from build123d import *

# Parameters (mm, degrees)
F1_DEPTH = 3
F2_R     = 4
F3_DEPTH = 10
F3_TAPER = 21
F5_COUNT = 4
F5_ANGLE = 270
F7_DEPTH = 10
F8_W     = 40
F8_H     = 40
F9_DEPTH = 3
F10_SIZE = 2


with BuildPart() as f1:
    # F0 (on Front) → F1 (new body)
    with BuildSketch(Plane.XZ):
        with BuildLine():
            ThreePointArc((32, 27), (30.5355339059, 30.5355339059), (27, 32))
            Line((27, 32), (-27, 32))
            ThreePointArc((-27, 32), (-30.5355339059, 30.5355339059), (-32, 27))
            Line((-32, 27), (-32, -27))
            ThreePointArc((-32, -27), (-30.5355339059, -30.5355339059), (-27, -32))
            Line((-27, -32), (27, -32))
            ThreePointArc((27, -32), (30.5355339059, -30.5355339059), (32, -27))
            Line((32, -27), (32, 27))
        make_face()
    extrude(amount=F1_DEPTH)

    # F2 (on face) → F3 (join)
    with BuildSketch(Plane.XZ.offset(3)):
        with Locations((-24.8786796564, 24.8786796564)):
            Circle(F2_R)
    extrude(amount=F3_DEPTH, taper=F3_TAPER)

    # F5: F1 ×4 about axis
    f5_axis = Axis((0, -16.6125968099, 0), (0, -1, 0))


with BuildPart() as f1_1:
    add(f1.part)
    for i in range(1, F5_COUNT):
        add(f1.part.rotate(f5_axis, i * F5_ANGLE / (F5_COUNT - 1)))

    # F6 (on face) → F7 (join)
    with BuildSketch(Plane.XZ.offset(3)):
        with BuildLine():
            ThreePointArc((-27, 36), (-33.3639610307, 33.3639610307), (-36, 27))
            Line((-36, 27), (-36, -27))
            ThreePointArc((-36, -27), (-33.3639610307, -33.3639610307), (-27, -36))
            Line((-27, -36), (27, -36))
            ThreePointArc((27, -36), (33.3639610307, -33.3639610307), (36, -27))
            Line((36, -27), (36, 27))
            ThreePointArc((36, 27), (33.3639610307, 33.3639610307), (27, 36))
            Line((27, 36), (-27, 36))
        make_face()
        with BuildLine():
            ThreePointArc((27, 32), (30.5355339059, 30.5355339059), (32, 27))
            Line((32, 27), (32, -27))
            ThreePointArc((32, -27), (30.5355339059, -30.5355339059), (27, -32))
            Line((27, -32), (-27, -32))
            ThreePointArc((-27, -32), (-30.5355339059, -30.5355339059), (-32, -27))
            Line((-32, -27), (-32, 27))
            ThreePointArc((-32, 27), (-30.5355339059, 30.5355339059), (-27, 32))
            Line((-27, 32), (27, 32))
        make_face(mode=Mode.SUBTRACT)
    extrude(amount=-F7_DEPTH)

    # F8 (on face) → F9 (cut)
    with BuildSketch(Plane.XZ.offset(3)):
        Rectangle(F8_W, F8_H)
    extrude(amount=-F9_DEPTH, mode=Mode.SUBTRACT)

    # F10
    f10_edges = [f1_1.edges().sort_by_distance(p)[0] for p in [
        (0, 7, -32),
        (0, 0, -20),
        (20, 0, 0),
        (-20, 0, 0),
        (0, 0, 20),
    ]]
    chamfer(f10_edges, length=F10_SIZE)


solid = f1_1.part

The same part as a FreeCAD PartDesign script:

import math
import FreeCAD as App
import Part
import Sketcher
Q = App.Units.Quantity


def edges_at(feature, points):
    """Names of the edges that pass closest to the given points."""
    edges = feature.Shape.Edges
    near = lambda p: min(range(len(edges)), key=lambda i: edges[i].distToShape(Part.Vertex(*p))[0])
    return sorted({f"Edge{near(p) + 1}" for p in points})

doc = App.newDocument("Part")
params = doc.addObject("Spreadsheet::Sheet", "Params")
for row, (alias, value) in enumerate([
    ("sketch1_radius", "5 mm"),
    ("sketch1_width", "54 mm"),
    ("pad1_length", "3 mm"),
    ("sketch2_diameter", "8 mm"),
    ("pad2_length", "10 mm"),
    ("pad2_taper", "-21 deg"),
    ("sketch3_radius", "9 mm"),
    ("sketch3_radius2", "5 mm"),
    ("sketch3_width", "54 mm"),
    ("pad3_length", "10 mm"),
    ("sketch4_width", "40 mm"),
    ("pocket1_length", "3 mm"),
    ("chamfer_size", "2 mm"),
], start=1):
    params.set(f"A{row}", alias)
    params.set(f"B{row}", "=" + value)
    params.setAlias(f"B{row}", alias)

body = doc.addObject("PartDesign::Body", "Body")

# Sketch on XZ plane
sketch1 = doc.addObject("Sketcher::SketchObject", "Sketch")
body.addObject(sketch1)
sketch1.AttachmentSupport = (doc.XZ_Plane, [""])
sketch1.MapMode = "FlatFace"
sketch1.addGeometry(Part.ArcOfCircle(Part.Circle(App.Vector(27, 27, 0), App.Vector(0, 0, 1), 5), math.radians(0), math.radians(90)), False)
sketch1.addGeometry(Part.LineSegment(App.Vector(27, 32, 0), App.Vector(-27, 32, 0)), False)
sketch1.addGeometry(Part.ArcOfCircle(Part.Circle(App.Vector(-27, 27, 0), App.Vector(0, 0, 1), 5), math.radians(90), math.radians(180)), False)
sketch1.addGeometry(Part.LineSegment(App.Vector(-32, 27, 0), App.Vector(-32, -27, 0)), False)
sketch1.addGeometry(Part.ArcOfCircle(Part.Circle(App.Vector(-27, -27, 0), App.Vector(0, 0, 1), 5), math.radians(180), math.radians(270)), False)
sketch1.addGeometry(Part.LineSegment(App.Vector(-27, -32, 0), App.Vector(27, -32, 0)), False)
sketch1.addGeometry(Part.ArcOfCircle(Part.Circle(App.Vector(27, -27, 0), App.Vector(0, 0, 1), 5), math.radians(-90), math.radians(0)), False)
sketch1.addGeometry(Part.LineSegment(App.Vector(32, -27, 0), App.Vector(32, 27, 0)), False)
sketch1.addConstraint(Sketcher.Constraint("Tangent", 0, 2, 1, 1))
sketch1.addConstraint(Sketcher.Constraint("Tangent", 1, 2, 2, 1))
sketch1.addConstraint(Sketcher.Constraint("Tangent", 2, 2, 3, 1))
sketch1.addConstraint(Sketcher.Constraint("Tangent", 3, 2, 4, 1))
sketch1.addConstraint(Sketcher.Constraint("Tangent", 4, 2, 5, 1))
sketch1.addConstraint(Sketcher.Constraint("Tangent", 5, 2, 6, 1))
sketch1.addConstraint(Sketcher.Constraint("Tangent", 6, 2, 7, 1))
sketch1.addConstraint(Sketcher.Constraint("Tangent", 7, 2, 0, 1))
sketch1.addConstraint(Sketcher.Constraint("Horizontal", 1))
sketch1.addConstraint(Sketcher.Constraint("Vertical", 3))
sketch1.addConstraint(Sketcher.Constraint("Horizontal", 5))
sketch1.addConstraint(Sketcher.Constraint("Vertical", 7))
sketch1.addConstraint(Sketcher.Constraint("Equal", 0, 2))
sketch1.addConstraint(Sketcher.Constraint("Equal", 2, 4))
sketch1.addConstraint(Sketcher.Constraint("Equal", 4, 6))
sketch1.addConstraint(Sketcher.Constraint("Symmetric", 0, 3, 4, 3, -1, 1))
sketch1.addConstraint(Sketcher.Constraint("Equal", 5, 3))
sketch1.addConstraint(Sketcher.Constraint("Radius", 0, Q("5 mm")))
sketch1.addConstraint(Sketcher.Constraint("DistanceX", 1, 2, 1, 1, Q("54 mm")))
sketch1.setExpression("Constraints[17]", "Params.sketch1_radius")
sketch1.setExpression("Constraints[18]", "Params.sketch1_width")
pad1 = doc.addObject("PartDesign::Pad", "Pad")
body.addObject(pad1)
pad1.Profile = sketch1
pad1.setExpression("Length", "Params.pad1_length")

# Sketch on XZ plane
sketch2 = doc.addObject("Sketcher::SketchObject", "Sketch001")
body.addObject(sketch2)
sketch2.AttachmentSupport = (doc.XZ_Plane, [""])
sketch2.MapMode = "FlatFace"
sketch2.AttachmentOffset = App.Placement(App.Vector(0, 0, 3), App.Rotation())
sketch2.addGeometry(Part.Circle(App.Vector(-24.9, 24.9, 0), App.Vector(0, 0, 1), 4), False)
sketch2.addConstraint(Sketcher.Constraint("Diameter", 0, Q("8 mm")))
sketch2.addConstraint(Sketcher.Constraint("DistanceX", 0, 3, -1, 1, Q("24.87868 mm")))
sketch2.addConstraint(Sketcher.Constraint("DistanceY", -1, 1, 0, 3, Q("24.87868 mm")))
sketch2.setExpression("Constraints[0]", "Params.sketch2_diameter")
pad2 = doc.addObject("PartDesign::Pad", "Pad001")
body.addObject(pad2)
pad2.Profile = sketch2
pad2.setExpression("Length", "Params.pad2_length")
pad2.setExpression("TaperAngle", "Params.pad2_taper")
body2 = doc.addObject("PartDesign::Body", "Body001")
doc.recompute()

body2.BaseFeature = body
doc.recompute()

body3 = doc.addObject("PartDesign::Body", "Body002")
body3.BaseFeature = body
body3.Placement = App.Placement(App.Vector(0, 0, 0), App.Rotation(App.Vector(0, -1, 0), 90))
boolean = doc.addObject("PartDesign::Boolean", "Boolean")
body2.addObject(boolean)
boolean.Type = "Fuse"
boolean.addObjects([body3])
doc.recompute()

body4 = doc.addObject("PartDesign::Body", "Body003")
body4.BaseFeature = body
body4.Placement = App.Placement(App.Vector(0, 0, 0), App.Rotation(App.Vector(0, -1, 0), 180))
boolean2 = doc.addObject("PartDesign::Boolean", "Boolean001")
body2.addObject(boolean2)
boolean2.Type = "Fuse"
boolean2.addObjects([body4])
doc.recompute()

body.Placement = App.Placement(App.Vector(0, 0, 0), App.Rotation(App.Vector(0, -1, 0), 270))
boolean3 = doc.addObject("PartDesign::Boolean", "Boolean002")
body2.addObject(boolean3)
boolean3.Type = "Fuse"
boolean3.addObjects([body])

# Sketch on XZ plane
sketch3 = doc.addObject("Sketcher::SketchObject", "Sketch002")
body2.addObject(sketch3)
sketch3.AttachmentSupport = (doc.getObject("XZ_Plane001"), [""])
sketch3.MapMode = "FlatFace"
sketch3.AttachmentOffset = App.Placement(App.Vector(0, 0, 3), App.Rotation())
sketch3.addGeometry(Part.ArcOfCircle(Part.Circle(App.Vector(-27, 27, 0), App.Vector(0, 0, 1), 9), math.radians(90), math.radians(180)), False)
sketch3.addGeometry(Part.LineSegment(App.Vector(-36, 27, 0), App.Vector(-36, -27, 0)), False)
sketch3.addGeometry(Part.ArcOfCircle(Part.Circle(App.Vector(-27, -27, 0), App.Vector(0, 0, 1), 9), math.radians(180), math.radians(270)), False)
sketch3.addGeometry(Part.LineSegment(App.Vector(-27, -36, 0), App.Vector(27, -36, 0)), False)
sketch3.addGeometry(Part.ArcOfCircle(Part.Circle(App.Vector(27, -27, 0), App.Vector(0, 0, 1), 9), math.radians(-90), math.radians(0)), False)
sketch3.addGeometry(Part.LineSegment(App.Vector(36, -27, 0), App.Vector(36, 27, 0)), False)
sketch3.addGeometry(Part.ArcOfCircle(Part.Circle(App.Vector(27, 27, 0), App.Vector(0, 0, 1), 9), math.radians(0), math.radians(90)), False)
sketch3.addGeometry(Part.LineSegment(App.Vector(27, 36, 0), App.Vector(-27, 36, 0)), False)
sketch3.addGeometry(Part.LineSegment(App.Vector(-27, 32, 0), App.Vector(27, 32, 0)), False)
sketch3.addGeometry(Part.ArcOfCircle(Part.Circle(App.Vector(27, 27, 0), App.Vector(0, 0, 1), 5), math.radians(0), math.radians(90)), False)
sketch3.addGeometry(Part.LineSegment(App.Vector(32, 27, 0), App.Vector(32, -27, 0)), False)
sketch3.addGeometry(Part.ArcOfCircle(Part.Circle(App.Vector(27, -27, 0), App.Vector(0, 0, 1), 5), math.radians(-90), math.radians(0)), False)
sketch3.addGeometry(Part.LineSegment(App.Vector(27, -32, 0), App.Vector(-27, -32, 0)), False)
sketch3.addGeometry(Part.ArcOfCircle(Part.Circle(App.Vector(-27, -27, 0), App.Vector(0, 0, 1), 5), math.radians(180), math.radians(270)), False)
sketch3.addGeometry(Part.LineSegment(App.Vector(-32, -27, 0), App.Vector(-32, 27, 0)), False)
sketch3.addGeometry(Part.ArcOfCircle(Part.Circle(App.Vector(-27, 27, 0), App.Vector(0, 0, 1), 5), math.radians(90), math.radians(180)), False)
sketch3.addConstraint(Sketcher.Constraint("Tangent", 0, 2, 1, 1))
sketch3.addConstraint(Sketcher.Constraint("Tangent", 1, 2, 2, 1))
sketch3.addConstraint(Sketcher.Constraint("Tangent", 2, 2, 3, 1))
sketch3.addConstraint(Sketcher.Constraint("Tangent", 3, 2, 4, 1))
sketch3.addConstraint(Sketcher.Constraint("Tangent", 4, 2, 5, 1))
sketch3.addConstraint(Sketcher.Constraint("Tangent", 5, 2, 6, 1))
sketch3.addConstraint(Sketcher.Constraint("Tangent", 6, 2, 7, 1))
sketch3.addConstraint(Sketcher.Constraint("Tangent", 7, 2, 0, 1))
sketch3.addConstraint(Sketcher.Constraint("Tangent", 8, 2, 9, 2))
sketch3.addConstraint(Sketcher.Constraint("Tangent", 9, 1, 10, 1))
sketch3.addConstraint(Sketcher.Constraint("Tangent", 10, 2, 11, 2))
sketch3.addConstraint(Sketcher.Constraint("Tangent", 11, 1, 12, 1))
sketch3.addConstraint(Sketcher.Constraint("Tangent", 12, 2, 13, 2))
sketch3.addConstraint(Sketcher.Constraint("Tangent", 13, 1, 14, 1))
sketch3.addConstraint(Sketcher.Constraint("Tangent", 14, 2, 15, 2))
sketch3.addConstraint(Sketcher.Constraint("Tangent", 15, 1, 8, 1))
sketch3.addConstraint(Sketcher.Constraint("Vertical", 1))
sketch3.addConstraint(Sketcher.Constraint("Horizontal", 3))
sketch3.addConstraint(Sketcher.Constraint("Vertical", 5))
sketch3.addConstraint(Sketcher.Constraint("Horizontal", 7))
sketch3.addConstraint(Sketcher.Constraint("Horizontal", 8))
sketch3.addConstraint(Sketcher.Constraint("Vertical", 10))
sketch3.addConstraint(Sketcher.Constraint("Horizontal", 12))
sketch3.addConstraint(Sketcher.Constraint("Vertical", 14))
sketch3.addConstraint(Sketcher.Constraint("Coincident", 9, 3, 6, 3))
sketch3.addConstraint(Sketcher.Constraint("Coincident", 11, 3, 4, 3))
sketch3.addConstraint(Sketcher.Constraint("Coincident", 13, 3, 2, 3))
sketch3.addConstraint(Sketcher.Constraint("Equal", 0, 2))
sketch3.addConstraint(Sketcher.Constraint("Equal", 2, 4))
sketch3.addConstraint(Sketcher.Constraint("Equal", 4, 6))
sketch3.addConstraint(Sketcher.Constraint("Equal", 13, 15))
sketch3.addConstraint(Sketcher.Constraint("Symmetric", 0, 3, 4, 3, -1, 1))
sketch3.addConstraint(Sketcher.Constraint("Equal", 12, 1))
sketch3.addConstraint(Sketcher.Constraint("Radius", 0, Q("9 mm")))
sketch3.addConstraint(Sketcher.Constraint("Radius", 9, Q("5 mm")))
sketch3.addConstraint(Sketcher.Constraint("DistanceX", 3, 1, 3, 2, Q("54 mm")))
sketch3.setExpression("Constraints[33]", "Params.sketch3_radius")
sketch3.setExpression("Constraints[34]", "Params.sketch3_radius2")
sketch3.setExpression("Constraints[35]", "Params.sketch3_width")
pad3 = doc.addObject("PartDesign::Pad", "Pad002")
body2.addObject(pad3)
pad3.Profile = sketch3
pad3.setExpression("Length", "Params.pad3_length")
pad3.Reversed = True

# Sketch on XZ plane
sketch4 = doc.addObject("Sketcher::SketchObject", "Sketch003")
body2.addObject(sketch4)
sketch4.AttachmentSupport = (doc.getObject("XZ_Plane001"), [""])
sketch4.MapMode = "FlatFace"
sketch4.AttachmentOffset = App.Placement(App.Vector(0, 0, 3), App.Rotation())
sketch4.addGeometry(Part.LineSegment(App.Vector(-20, 20, 0), App.Vector(-20, -20, 0)), False)
sketch4.addGeometry(Part.LineSegment(App.Vector(-20, -20, 0), App.Vector(20, -20, 0)), False)
sketch4.addGeometry(Part.LineSegment(App.Vector(20, -20, 0), App.Vector(20, 20, 0)), False)
sketch4.addGeometry(Part.LineSegment(App.Vector(20, 20, 0), App.Vector(-20, 20, 0)), False)
sketch4.addConstraint(Sketcher.Constraint("Coincident", 0, 2, 1, 1))
sketch4.addConstraint(Sketcher.Constraint("Coincident", 1, 2, 2, 1))
sketch4.addConstraint(Sketcher.Constraint("Coincident", 2, 2, 3, 1))
sketch4.addConstraint(Sketcher.Constraint("Coincident", 3, 2, 0, 1))
sketch4.addConstraint(Sketcher.Constraint("Vertical", 0))
sketch4.addConstraint(Sketcher.Constraint("Horizontal", 1))
sketch4.addConstraint(Sketcher.Constraint("Vertical", 2))
sketch4.addConstraint(Sketcher.Constraint("Horizontal", 3))
sketch4.addConstraint(Sketcher.Constraint("Symmetric", 0, 2, 2, 2, -1, 1))
sketch4.addConstraint(Sketcher.Constraint("Equal", 3, 0))
sketch4.addConstraint(Sketcher.Constraint("DistanceX", 1, 1, 1, 2, Q("40 mm")))
sketch4.setExpression("Constraints[10]", "Params.sketch4_width")
pocket1 = doc.addObject("PartDesign::Pocket", "Pocket")
body2.addObject(pocket1)
pocket1.Profile = sketch4
pocket1.setExpression("Length", "Params.pocket1_length")
doc.recompute()

chamfer = doc.addObject("PartDesign::Chamfer", "Chamfer")
body2.addObject(chamfer)
chamfer.Base = (pocket1, edges_at(pocket1, [
    (0, 7, -32),
    (0, 0, -20),
    (20, 0, 0),
    (-20, 0, 0),
    (0, 0, 20),
]))
chamfer.setExpression("Size", "Params.chamfer_size")

doc.recompute()
